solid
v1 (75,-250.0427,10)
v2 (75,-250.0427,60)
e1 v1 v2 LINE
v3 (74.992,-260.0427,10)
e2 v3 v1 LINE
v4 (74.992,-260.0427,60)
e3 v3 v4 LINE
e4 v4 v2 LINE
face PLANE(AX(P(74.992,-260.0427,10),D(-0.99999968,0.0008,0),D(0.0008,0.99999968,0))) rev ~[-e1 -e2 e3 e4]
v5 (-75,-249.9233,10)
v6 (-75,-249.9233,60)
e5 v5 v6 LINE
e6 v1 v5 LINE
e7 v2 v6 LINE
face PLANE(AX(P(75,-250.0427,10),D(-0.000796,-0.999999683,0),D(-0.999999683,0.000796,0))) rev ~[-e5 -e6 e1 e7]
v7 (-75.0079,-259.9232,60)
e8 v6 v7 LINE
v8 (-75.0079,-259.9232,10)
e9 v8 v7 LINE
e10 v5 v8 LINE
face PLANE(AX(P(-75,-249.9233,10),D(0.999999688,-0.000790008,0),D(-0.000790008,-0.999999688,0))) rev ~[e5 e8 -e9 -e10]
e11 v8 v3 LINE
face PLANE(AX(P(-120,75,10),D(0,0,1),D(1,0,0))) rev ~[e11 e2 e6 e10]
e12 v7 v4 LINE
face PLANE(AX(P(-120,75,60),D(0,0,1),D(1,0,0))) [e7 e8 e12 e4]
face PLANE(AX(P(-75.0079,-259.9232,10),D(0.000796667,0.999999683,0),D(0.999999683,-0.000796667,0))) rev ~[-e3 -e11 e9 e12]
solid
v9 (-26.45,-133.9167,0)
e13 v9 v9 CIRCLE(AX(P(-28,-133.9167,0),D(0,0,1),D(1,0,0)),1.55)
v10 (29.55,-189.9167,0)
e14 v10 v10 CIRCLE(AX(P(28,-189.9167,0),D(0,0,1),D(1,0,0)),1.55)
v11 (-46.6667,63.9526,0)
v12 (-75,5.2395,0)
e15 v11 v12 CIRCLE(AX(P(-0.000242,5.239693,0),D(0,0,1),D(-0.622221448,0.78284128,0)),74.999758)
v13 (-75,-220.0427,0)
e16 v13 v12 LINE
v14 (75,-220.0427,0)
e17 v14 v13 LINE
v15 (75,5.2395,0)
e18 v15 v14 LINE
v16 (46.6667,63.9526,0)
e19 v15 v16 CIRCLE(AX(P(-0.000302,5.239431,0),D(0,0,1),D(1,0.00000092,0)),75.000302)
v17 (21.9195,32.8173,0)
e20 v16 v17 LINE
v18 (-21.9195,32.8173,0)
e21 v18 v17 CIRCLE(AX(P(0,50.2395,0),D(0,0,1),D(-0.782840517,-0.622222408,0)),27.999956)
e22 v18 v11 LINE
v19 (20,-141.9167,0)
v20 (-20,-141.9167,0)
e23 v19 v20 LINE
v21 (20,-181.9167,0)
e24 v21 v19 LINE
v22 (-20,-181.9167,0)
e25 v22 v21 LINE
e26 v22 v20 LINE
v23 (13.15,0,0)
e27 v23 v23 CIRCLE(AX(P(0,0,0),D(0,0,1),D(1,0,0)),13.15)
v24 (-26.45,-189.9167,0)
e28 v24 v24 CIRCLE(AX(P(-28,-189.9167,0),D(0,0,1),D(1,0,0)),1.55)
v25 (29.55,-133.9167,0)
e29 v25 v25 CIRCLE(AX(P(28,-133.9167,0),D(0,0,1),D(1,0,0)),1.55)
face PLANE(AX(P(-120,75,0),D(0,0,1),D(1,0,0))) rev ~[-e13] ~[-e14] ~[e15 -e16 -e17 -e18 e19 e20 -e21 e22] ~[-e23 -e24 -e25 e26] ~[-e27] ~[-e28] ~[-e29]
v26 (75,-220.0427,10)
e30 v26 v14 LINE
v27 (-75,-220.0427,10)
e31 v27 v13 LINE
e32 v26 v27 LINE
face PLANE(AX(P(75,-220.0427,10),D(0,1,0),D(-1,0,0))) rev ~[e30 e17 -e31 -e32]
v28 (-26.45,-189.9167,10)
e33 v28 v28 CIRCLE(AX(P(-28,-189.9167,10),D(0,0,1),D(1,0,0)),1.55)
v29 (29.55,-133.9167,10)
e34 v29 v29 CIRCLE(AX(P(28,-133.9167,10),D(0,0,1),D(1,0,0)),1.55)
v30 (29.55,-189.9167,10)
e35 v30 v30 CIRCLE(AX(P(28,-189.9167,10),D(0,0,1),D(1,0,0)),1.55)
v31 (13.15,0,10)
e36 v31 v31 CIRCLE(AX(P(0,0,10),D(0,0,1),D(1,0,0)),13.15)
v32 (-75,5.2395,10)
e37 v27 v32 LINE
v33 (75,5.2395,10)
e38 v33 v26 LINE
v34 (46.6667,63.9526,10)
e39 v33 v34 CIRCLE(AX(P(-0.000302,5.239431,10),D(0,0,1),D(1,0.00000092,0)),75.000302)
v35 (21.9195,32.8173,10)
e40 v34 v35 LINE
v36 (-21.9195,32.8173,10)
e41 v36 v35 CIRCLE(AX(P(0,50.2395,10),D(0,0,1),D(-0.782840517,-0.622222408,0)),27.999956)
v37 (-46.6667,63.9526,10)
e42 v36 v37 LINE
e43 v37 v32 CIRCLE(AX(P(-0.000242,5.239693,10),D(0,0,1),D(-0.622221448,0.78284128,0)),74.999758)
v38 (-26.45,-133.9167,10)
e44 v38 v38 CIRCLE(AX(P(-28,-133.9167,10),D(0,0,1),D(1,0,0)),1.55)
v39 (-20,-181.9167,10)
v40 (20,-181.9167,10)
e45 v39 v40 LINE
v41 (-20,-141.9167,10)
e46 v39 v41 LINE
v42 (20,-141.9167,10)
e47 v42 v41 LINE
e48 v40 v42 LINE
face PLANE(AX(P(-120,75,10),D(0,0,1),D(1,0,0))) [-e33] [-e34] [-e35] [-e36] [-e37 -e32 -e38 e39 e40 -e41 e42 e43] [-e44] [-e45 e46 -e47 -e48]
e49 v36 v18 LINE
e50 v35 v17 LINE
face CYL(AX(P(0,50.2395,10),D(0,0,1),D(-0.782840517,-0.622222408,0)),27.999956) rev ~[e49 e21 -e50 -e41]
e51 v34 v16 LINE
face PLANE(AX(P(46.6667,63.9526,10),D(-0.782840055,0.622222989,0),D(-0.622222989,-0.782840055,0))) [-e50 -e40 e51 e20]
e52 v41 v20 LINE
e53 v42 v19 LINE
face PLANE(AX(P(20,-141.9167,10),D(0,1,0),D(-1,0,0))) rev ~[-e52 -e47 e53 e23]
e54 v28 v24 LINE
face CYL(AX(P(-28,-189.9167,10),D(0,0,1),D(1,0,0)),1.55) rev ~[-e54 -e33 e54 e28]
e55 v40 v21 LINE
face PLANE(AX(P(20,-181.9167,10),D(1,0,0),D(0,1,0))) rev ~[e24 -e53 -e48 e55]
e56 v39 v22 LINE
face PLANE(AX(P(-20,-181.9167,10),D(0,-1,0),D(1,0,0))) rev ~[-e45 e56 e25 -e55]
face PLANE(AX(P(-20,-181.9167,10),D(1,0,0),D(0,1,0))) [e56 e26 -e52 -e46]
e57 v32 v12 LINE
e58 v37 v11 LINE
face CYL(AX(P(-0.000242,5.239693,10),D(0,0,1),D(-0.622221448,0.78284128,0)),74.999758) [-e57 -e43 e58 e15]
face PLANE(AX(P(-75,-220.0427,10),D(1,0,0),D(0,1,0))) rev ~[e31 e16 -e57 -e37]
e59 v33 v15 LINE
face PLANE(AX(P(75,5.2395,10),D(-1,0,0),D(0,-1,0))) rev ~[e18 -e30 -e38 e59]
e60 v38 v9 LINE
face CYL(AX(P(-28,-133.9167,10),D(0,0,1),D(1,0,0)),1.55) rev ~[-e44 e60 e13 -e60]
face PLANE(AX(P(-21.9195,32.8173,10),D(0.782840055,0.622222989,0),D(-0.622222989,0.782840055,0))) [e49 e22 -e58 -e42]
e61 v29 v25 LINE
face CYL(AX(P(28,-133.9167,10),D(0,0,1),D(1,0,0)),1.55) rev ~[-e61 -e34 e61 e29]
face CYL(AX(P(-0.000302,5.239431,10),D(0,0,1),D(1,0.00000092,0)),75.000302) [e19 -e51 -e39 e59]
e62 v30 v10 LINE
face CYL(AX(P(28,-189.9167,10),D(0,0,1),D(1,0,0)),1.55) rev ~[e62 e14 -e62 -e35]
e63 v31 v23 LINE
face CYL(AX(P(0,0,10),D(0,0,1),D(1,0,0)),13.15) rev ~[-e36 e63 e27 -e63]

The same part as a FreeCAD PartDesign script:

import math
import FreeCAD as App
import Part
import Sketcher
from FreeCAD import Vector
Q = App.Units.Quantity


def add_polygon(sketch, points):
    """Adds a closed chain of lines whose ends are joined by coincident constraints."""
    first, n = sketch.GeometryCount, len(points)
    for a, b in zip(points, points[1:] + points[:1]):
        sketch.addGeometry(Part.LineSegment(App.Vector(*a, 0), App.Vector(*b, 0)), False)
    for i in range(n):
        sketch.addConstraint(Sketcher.Constraint("Coincident", first + i, 2, first + (i + 1) % n, 1))

doc = App.newDocument("Part")
body = doc.addObject("PartDesign::Body", "Body")
body.AllowCompound = True

# Sketch on XY plane
sketch1 = body.newObject("Sketcher::SketchObject", "Sketch")
sketch1.AttachmentSupport = (doc.getObject("XY_Plane"), [""])
sketch1.MapMode = "FlatFace"
sketch1.AttachmentOffset = App.Placement(Vector(0, 0, 10), App.Rotation())
sketch1.addGeometry(Part.LineSegment(Vector(75, -220, 0), Vector(75, 5.2, 0)), False)  # 0
sketch1.addGeometry(Part.ArcOfCircle(Part.Circle(Vector(0, 5.2, 0), Vector(0, 0, 1), 75), math.radians(0), math.radians(52)), False)  # 1
sketch1.addGeometry(Part.LineSegment(Vector(46.7, 64, 0), Vector(21.9, 32.8, 0)), False)  # 2
sketch1.addGeometry(Part.ArcOfCircle(Part.Circle(Vector(0, 50.2, 0), Vector(0, 0, 1), 28), math.radians(-142), math.radians(-38)), False)  # 3
sketch1.addGeometry(Part.LineSegment(Vector(-21.9, 32.8, 0), Vector(-46.7, 64, 0)), False)  # 4
sketch1.addGeometry(Part.ArcOfCircle(Part.Circle(Vector(0, 5.2, 0), Vector(0, 0, 1), 75), math.radians(128), math.radians(180)), False)  # 5
sketch1.addGeometry(Part.LineSegment(Vector(-75, 5.2, 0), Vector(-75, -220, 0)), False)  # 6
sketch1.addGeometry(Part.LineSegment(Vector(-75, -220, 0), Vector(75, -220, 0)), False)  # 7
sketch1.addGeometry(Part.Circle(Vector(-28, -189.9, 0), Vector(0, 0, 1), 1.6), False)  # 8
sketch1.addGeometry(Part.Circle(Vector(-28, -133.9, 0), Vector(0, 0, 1), 1.6), False)  # 9
sketch1.addGeometry(Part.Circle(Vector(28, -189.9, 0), Vector(0, 0, 1), 1.6), False)  # 10
add_polygon(sketch1, [(20, -181.9), (-20, -181.9), (-20, -141.9), (20, -141.9)])  # lines 11-14
sketch1.addGeometry(Part.Circle(Vector(28, -133.9, 0), Vector(0, 0, 1), 1.6), False)  # 15
sketch1.addGeometry(Part.Circle(Vector(0, 0, 0), Vector(0, 0, 1), 13.2), False)  # 16
sketch1.addConstraint(Sketcher.Constraint("Tangent", 0, 2, 1, 1))
sketch1.addConstraint(Sketcher.Constraint("Coincident", 1, 2, 2, 1))
sketch1.addConstraint(Sketcher.Constraint("Tangent", 2, 2, 3, 2))
sketch1.addConstraint(Sketcher.Constraint("Tangent", 3, 1, 4, 1))
sketch1.addConstraint(Sketcher.Constraint("Coincident", 4, 2, 5, 1))
sketch1.addConstraint(Sketcher.Constraint("Tangent", 5, 2, 6, 1))
sketch1.addConstraint(Sketcher.Constraint("Coincident", 6, 2, 7, 1))
sketch1.addConstraint(Sketcher.Constraint("Coincident", 7, 2, 0, 1))
sketch1.addConstraint(Sketcher.Constraint("Vertical", 0))
sketch1.addConstraint(Sketcher.Constraint("Vertical", 6))
sketch1.addConstraint(Sketcher.Constraint("Horizontal", 7))
sketch1.addConstraint(Sketcher.Constraint("Horizontal", 11))
sketch1.addConstraint(Sketcher.Constraint("Vertical", 12))
sketch1.addConstraint(Sketcher.Constraint("Horizontal", 13))
sketch1.addConstraint(Sketcher.Constraint("Vertical", 14))
sketch1.addConstraint(Sketcher.Constraint("Coincident", 16, 3, -1, 1))
sketch1.addConstraint(Sketcher.Constraint("Coincident", 5, 3, 1, 3))
sketch1.addConstraint(Sketcher.Constraint("Equal", 1, 5))
sketch1.addConstraint(Sketcher.Constraint("Equal", 8, 9))
sketch1.addConstraint(Sketcher.Constraint("Equal", 9, 10))
sketch1.addConstraint(Sketcher.Constraint("Equal", 10, 15))
sketch1.addConstraint(Sketcher.Constraint("Symmetric", 8, 3, 10, 3, -2))
sketch1.addConstraint(Sketcher.Constraint("Symmetric", 9, 3, 15, 3, -2))
sketch1.addConstraint(Sketcher.Constraint("Symmetric", 2, 2, 3, 1, -2))
sketch1.addConstraint(Sketcher.Constraint("PointOnObject", 1, 3, -2))
sketch1.addConstraint(Sketcher.Constraint("Vertical", 8, 3, 9, 3))
sketch1.addConstraint(Sketcher.Constraint("Equal", 13, 12))
sketch1.addConstraint(Sketcher.Constraint("Diameter", 16, Q("26.3 mm")))
sketch1.addConstraint(Sketcher.Constraint("Radius", 1, Q("75 mm")))
sketch1.addConstraint(Sketcher.Constraint("Radius", 3, Q("28 mm")))
sketch1.addConstraint(Sketcher.Constraint("Diameter", 8, Q("3.1 mm")))
sketch1.addConstraint(Sketcher.Constraint("DistanceX", 11, 2, 11, 1, Q("40 mm")))
sketch1.addConstraint(Sketcher.Constraint("DistanceX", 8, 3, -1, 1, Q("28 mm")))
sketch1.addConstraint(Sketcher.Constraint("DistanceX", 11, 2, -1, 1, Q("20 mm")))
sketch1.addConstraint(Sketcher.Constraint("DistanceY", 1, 3, 3, 3, Q("45 mm")))
sketch1.addConstraint(Sketcher.Constraint("DistanceY", 8, 3, 9, 3, Q("56 mm")))
sketch1.addConstraint(Sketcher.Constraint("DistanceY", 8, 3, 11, 2, Q("8 mm")))
sketch1.addConstraint(Sketcher.Constraint("DistanceY", 0, 1, 0, 2, Q("225.2822 mm")))
sketch1.addConstraint(Sketcher.Constraint("DistanceY", 3, 3, 1, 2, Q("13.713 mm")))
sketch1.addConstraint(Sketcher.Constraint("DistanceY", 6, 2, 8, 3, Q("30.126 mm")))
sketch1.addConstraint(Sketcher.Constraint("DistanceY", -1, 1, 1, 3, Q("5.2395 mm")))
pad1 = body.newObject("PartDesign::Pad", "Pad")
pad1.Profile = sketch1
pad1.Length = 10
pad1.Reversed = True

# Sketch on XY plane
sketch2 = body.newObject("Sketcher::SketchObject", "Sketch001")
sketch2.AttachmentSupport = (doc.getObject("XY_Plane"), [""])
sketch2.MapMode = "FlatFace"
sketch2.AttachmentOffset = App.Placement(Vector(0, 0, 10), App.Rotation())
add_polygon(sketch2, [(75, -250), (-75, -250), (-75, -260), (75, -260)])  # lines 0-3
sketch2.addConstraint(Sketcher.Constraint("Perpendicular", 0, 1))
sketch2.addConstraint(Sketcher.Constraint("Perpendicular", 1, 2))
sketch2.addConstraint(Sketcher.Constraint("Perpendicular", 2, 3))
sketch2.addConstraint(Sketcher.Constraint("Distance", 0, Q("150 mm")))
sketch2.addConstraint(Sketcher.Constraint("Distance", 1, Q("10 mm")))
sketch2.addConstraint(Sketcher.Constraint("DistanceX", 0, 2, -1, 1, Q("75 mm")))
sketch2.addConstraint(Sketcher.Constraint("DistanceX", 1, 2, -1, 1, Q("75.008 mm")))
sketch2.addConstraint(Sketcher.Constraint("DistanceY", 0, 2, -1, 1, Q("249.9233 mm")))
pad2 = body.newObject("PartDesign::Pad", "Pad001")
pad2.Profile = sketch2
pad2.Length = 50

doc.recompute()
